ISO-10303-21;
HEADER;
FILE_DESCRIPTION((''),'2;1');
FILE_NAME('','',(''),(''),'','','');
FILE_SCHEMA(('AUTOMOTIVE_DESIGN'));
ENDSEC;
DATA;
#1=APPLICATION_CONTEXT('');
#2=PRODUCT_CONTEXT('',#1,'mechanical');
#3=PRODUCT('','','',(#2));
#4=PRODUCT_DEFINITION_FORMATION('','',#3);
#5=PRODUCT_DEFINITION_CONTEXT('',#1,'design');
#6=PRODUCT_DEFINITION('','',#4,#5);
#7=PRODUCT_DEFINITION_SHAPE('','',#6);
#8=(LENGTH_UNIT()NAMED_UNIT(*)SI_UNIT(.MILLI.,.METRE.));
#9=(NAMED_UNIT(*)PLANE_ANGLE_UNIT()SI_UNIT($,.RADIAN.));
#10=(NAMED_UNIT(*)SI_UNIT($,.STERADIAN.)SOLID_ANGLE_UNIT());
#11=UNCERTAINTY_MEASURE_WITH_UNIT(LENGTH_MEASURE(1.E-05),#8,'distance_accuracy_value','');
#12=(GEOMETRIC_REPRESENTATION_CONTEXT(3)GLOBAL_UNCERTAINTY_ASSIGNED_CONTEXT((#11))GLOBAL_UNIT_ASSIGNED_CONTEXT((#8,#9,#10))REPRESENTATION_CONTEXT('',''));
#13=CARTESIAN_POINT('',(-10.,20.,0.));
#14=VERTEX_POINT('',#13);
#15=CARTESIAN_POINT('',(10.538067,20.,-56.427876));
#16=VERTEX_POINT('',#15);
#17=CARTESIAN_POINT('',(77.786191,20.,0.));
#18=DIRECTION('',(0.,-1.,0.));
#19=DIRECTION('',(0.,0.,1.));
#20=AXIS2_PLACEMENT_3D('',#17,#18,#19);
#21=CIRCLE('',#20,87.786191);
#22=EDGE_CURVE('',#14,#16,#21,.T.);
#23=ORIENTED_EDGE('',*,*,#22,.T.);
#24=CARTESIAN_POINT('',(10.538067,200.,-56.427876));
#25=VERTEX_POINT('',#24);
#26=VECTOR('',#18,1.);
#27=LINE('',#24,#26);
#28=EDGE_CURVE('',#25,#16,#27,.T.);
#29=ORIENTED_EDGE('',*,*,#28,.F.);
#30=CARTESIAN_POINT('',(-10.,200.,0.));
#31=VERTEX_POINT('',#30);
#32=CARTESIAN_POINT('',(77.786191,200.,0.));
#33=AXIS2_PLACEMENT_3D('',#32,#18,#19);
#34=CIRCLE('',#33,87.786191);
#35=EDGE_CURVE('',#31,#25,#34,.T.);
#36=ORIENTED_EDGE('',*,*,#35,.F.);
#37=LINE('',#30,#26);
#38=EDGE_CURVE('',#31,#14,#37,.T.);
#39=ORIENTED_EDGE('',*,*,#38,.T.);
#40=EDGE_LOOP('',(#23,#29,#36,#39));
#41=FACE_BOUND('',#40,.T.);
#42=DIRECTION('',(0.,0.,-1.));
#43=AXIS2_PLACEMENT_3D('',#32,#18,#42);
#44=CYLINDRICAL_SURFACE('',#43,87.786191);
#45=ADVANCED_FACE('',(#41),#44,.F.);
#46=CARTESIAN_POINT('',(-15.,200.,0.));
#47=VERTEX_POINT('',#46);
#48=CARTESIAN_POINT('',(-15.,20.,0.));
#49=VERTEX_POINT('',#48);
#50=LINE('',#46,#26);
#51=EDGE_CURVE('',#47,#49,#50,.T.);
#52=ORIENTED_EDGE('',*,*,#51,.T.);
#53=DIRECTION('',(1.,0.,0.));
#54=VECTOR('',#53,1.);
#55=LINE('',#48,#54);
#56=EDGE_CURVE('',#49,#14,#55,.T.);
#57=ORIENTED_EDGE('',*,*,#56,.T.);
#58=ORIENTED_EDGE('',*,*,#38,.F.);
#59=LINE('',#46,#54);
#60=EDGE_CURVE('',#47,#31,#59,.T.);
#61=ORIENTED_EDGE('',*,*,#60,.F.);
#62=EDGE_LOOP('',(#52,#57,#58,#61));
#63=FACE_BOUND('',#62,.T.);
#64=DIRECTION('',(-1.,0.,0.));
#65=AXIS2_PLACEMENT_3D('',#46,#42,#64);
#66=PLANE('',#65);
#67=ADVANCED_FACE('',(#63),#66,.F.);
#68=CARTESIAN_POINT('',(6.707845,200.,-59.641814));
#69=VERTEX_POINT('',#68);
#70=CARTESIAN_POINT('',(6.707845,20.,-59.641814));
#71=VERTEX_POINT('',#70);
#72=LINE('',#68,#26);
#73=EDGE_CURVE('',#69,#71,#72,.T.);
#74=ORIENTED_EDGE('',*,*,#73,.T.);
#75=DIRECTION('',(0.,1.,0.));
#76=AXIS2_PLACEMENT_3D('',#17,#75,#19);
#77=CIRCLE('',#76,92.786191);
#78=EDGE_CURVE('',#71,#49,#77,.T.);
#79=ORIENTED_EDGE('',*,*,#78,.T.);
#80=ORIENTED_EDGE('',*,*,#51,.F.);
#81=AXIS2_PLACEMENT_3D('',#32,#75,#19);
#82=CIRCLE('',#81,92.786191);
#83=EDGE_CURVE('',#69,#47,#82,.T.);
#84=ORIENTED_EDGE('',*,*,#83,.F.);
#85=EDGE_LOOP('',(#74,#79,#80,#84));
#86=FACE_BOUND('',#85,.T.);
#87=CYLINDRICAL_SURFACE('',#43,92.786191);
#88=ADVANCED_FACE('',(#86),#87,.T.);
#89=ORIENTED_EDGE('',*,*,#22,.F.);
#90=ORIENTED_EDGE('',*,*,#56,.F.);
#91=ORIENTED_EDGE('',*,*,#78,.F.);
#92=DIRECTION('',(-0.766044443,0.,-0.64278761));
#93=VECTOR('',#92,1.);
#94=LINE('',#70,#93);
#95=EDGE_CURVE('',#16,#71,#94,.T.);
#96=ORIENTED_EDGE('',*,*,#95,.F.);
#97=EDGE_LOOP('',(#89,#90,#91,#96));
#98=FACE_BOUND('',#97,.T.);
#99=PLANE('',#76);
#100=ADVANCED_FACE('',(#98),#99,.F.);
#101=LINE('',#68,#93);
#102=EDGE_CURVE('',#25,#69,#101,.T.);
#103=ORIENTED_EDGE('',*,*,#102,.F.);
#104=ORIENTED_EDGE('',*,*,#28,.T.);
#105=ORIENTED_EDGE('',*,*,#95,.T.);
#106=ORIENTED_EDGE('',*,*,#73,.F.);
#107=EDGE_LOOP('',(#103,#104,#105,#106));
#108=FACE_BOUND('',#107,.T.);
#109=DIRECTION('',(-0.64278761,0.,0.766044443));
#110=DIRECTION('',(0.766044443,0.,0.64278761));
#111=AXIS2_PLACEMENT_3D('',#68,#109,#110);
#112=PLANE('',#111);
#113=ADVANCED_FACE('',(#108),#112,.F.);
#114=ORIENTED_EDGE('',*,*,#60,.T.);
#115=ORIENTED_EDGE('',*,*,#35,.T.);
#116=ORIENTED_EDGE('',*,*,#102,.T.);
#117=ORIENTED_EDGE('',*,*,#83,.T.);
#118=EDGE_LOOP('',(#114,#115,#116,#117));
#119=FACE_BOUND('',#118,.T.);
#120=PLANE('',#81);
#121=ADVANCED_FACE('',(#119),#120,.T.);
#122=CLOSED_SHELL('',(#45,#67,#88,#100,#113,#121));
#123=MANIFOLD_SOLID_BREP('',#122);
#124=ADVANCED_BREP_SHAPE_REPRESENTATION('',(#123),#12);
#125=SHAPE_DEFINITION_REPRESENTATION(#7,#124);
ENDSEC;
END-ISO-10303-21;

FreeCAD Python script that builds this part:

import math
import FreeCAD as App
import Part
import Sketcher

V = App.Vector
Q = App.Units.Quantity

doc = App.newDocument("Part")
body = doc.addObject("PartDesign::Body", "Body")

sketch1 = body.newObject("Sketcher::SketchObject", "Sketch")
sketch1.AttachmentSupport = (doc.getObject("XZ_Plane"), [""])
sketch1.MapMode = "FlatFace"
sketch1.addGeometry([
    Part.LineSegment(V(-10, 0, 0), V(10, 0, 0)),
    Part.ArcOfCircle(Part.Circle(V(77.8, 0, 0), V(0, 0, 1), 67.8), math.radians(180), math.radians(220)),
    Part.LineSegment(V(25.9, -43.6, 0), V(10.5, -56.4, 0)),
    Part.ArcOfCircle(Part.Circle(V(77.8, 0, 0), V(0, 0, 1), 87.8), math.radians(180), math.radians(220)),
    Part.Circle(V(0.6, -10, 0), V(0, 0, 1), 2.6),
    Part.Circle(V(12.3, -41.9, 0), V(0, 0, 1), 2.6),
    Part.Circle(V(4.7, -26.6, 0), V(0, 0, 1), 2.6),
], False)
sketch1.addConstraint([
    Sketcher.Constraint("Coincident", 0, 2, 1, 1),
    Sketcher.Constraint("Coincident", 1, 2, 2, 1),
    Sketcher.Constraint("Coincident", 2, 2, 3, 2),
    Sketcher.Constraint("Coincident", 3, 1, 0, 1),
    Sketcher.Constraint("Horizontal", 0),
    Sketcher.Constraint("Coincident", 3, 3, 1, 3),
    Sketcher.Constraint("Equal", 4, 5),
    Sketcher.Constraint("Equal", 5, 6),
    Sketcher.Constraint("Symmetric", 0, 2, 3, 1, -1, 1),
    Sketcher.Constraint("PointOnObject", 1, 3, -1),
    Sketcher.Constraint("Diameter", 4, 5.2),
    Sketcher.Constraint("DistanceX", 0, 1, 0, 2, 20.0),
    Sketcher.Constraint("Angle", 2, Q("-140 deg")),
    Sketcher.Constraint("DistanceY", 4, 3, -1, 1, 10.0),
    Sketcher.Constraint("Radius", 1, 67.786191),
    Sketcher.Constraint("DistanceX", 5, 3, 1, 3, 65.5211),
    Sketcher.Constraint("DistanceX", 4, 3, 2, 2, 9.892602),
    Sketcher.Constraint("DistanceY", 5, 3, -1, 1, 41.924658),
    Sketcher.Constraint("DistanceX", -1, 1, 6, 3, 4.691081),
    Sketcher.Constraint("DistanceY", 1, 2, 6, 3, 16.96768),
    Sketcher.Constraint("DistanceX", -1, 1, 4, 3, 0.645466),
])
pad1 = body.newObject("PartDesign::Pad", "Pad")
pad1.Profile = sketch1
pad1.Length = 20
pad1.Reversed = True

sketch2 = body.newObject("Sketcher::SketchObject", "Sketch001")
sketch2.AttachmentSupport = (doc.getObject("XZ_Plane"), [""])
sketch2.MapMode = "FlatFace"
sketch2.AttachmentOffset = App.Placement(V(0, 0, -20), App.Rotation())
sketch2.addGeometry([
    Part.LineSegment(V(26, -44, 0), V(11, -56, 0)),
    Part.ArcOfCircle(Part.Circle(V(78, 0, 0), V(0, 0, 1), 88), math.radians(180), math.radians(220)),
    Part.LineSegment(V(-10, 0, 0), V(10, 0, 0)),
    Part.ArcOfCircle(Part.Circle(V(78, 0, 0), V(0, 0, 1), 68), math.radians(180), math.radians(220)),
], False)
sketch2.addConstraint([
    Sketcher.Constraint("Coincident", 0, 2, 1, 2),
    Sketcher.Constraint("Coincident", 1, 1, 2, 1),
    Sketcher.Constraint("Coincident", 2, 2, 3, 1),
    Sketcher.Constraint("Coincident", 3, 2, 0, 1),
    Sketcher.Constraint("Horizontal", 2),
    Sketcher.Constraint("Coincident", 3, 3, 1, 3),
    Sketcher.Constraint("Symmetric", 1, 1, 2, 2, -1, 1),
    Sketcher.Constraint("PointOnObject", 1, 3, -1),
    Sketcher.Constraint("DistanceX", 2, 1, 2, 2, 20.0),
    Sketcher.Constraint("Angle", 0, Q("-140 deg")),
    Sketcher.Constraint("Radius", 1, 87.786191),
    Sketcher.Constraint("DistanceX", -1, 1, 0, 2, 10.538067),
])
pocket1 = body.newObject("PartDesign::Pocket", "Pocket")
pocket1.Profile = sketch2
pocket1.Type = "ThroughAll"
pocket1.Reversed = True
body2 = doc.addObject("PartDesign::Body", "Body001")

sketch3 = body2.newObject("Sketcher::SketchObject", "Sketch002")
sketch3.AttachmentSupport = (doc.getObject("XZ_Plane001"), [""])
sketch3.MapMode = "FlatFace"
sketch3.AttachmentOffset = App.Placement(V(0, 0, -20), App.Rotation())
sketch3.addGeometry([
    Part.LineSegment(V(10.5, -56.4, 0), V(6.7, -59.6, 0)),
    Part.ArcOfCircle(Part.Circle(V(77.8, 0, 0), V(0, 0, 1), 92.8), math.radians(180), math.radians(220)),
    Part.LineSegment(V(-15, 0, 0), V(-10, 0, 0)),
    Part.ArcOfCircle(Part.Circle(V(77.8, 0, 0), V(0, 0, 1), 87.8), math.radians(180), math.radians(220)),
], False)
sketch3.addConstraint([
    Sketcher.Constraint("Coincident", 0, 2, 1, 2),
    Sketcher.Constraint("Coincident", 1, 1, 2, 1),
    Sketcher.Constraint("Coincident", 2, 2, 3, 1),
    Sketcher.Constraint("Coincident", 3, 2, 0, 1),
    Sketcher.Constraint("Horizontal", 2),
    Sketcher.Constraint("Coincident", 3, 3, 1, 3),
    Sketcher.Constraint("PointOnObject", 1, 3, -1),
    Sketcher.Constraint("PointOnObject", 1, 1, -1),
    Sketcher.Constraint("DistanceX", 2, 1, 2, 2, 5.0),
    Sketcher.Constraint("Angle", 0, Q("-140 deg")),
    Sketcher.Constraint("DistanceX", 1, 1, -1, 1, 15.0),
    Sketcher.Constraint("Radius", 1, 92.786191),
    Sketcher.Constraint("DistanceX", -1, 1, 0, 2, 6.707845),
])
pad2 = body2.newObject("PartDesign::Pad", "Pad001")
pad2.Profile = sketch3
pad2.Length = 180
pad2.Reversed = True

doc.recompute()
